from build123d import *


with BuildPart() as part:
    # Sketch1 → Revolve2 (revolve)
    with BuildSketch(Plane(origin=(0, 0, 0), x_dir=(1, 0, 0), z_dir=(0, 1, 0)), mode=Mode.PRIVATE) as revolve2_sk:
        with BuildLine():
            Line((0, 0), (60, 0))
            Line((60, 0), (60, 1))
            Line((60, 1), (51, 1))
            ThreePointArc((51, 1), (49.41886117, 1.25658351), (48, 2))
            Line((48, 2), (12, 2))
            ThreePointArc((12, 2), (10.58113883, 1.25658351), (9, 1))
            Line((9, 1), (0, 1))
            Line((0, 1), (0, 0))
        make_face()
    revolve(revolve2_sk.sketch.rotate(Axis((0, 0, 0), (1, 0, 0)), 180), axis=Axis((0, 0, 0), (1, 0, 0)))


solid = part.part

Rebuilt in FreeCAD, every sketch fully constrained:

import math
import FreeCAD as App
import Part
import Sketcher

V = App.Vector
Q = App.Units.Quantity

doc = App.newDocument("Part")
body = doc.addObject("PartDesign::Body", "Body")

# Sketch on XZ plane
sketch1 = body.newObject("Sketcher::SketchObject", "Sketch")
sketch1.AttachmentSupport = (doc.getObject("XZ_Plane"), [""])
sketch1.MapMode = "FlatFace"
sketch1.addGeometry([
    Part.LineSegment(V(0, 0, 0), V(60, 0, 0)),  # 0
    Part.LineSegment(V(60, 0, 0), V(60, -1, 0)),  # 1
    Part.LineSegment(V(60, -1, 0), V(51, -1, 0)),  # 2
    Part.ArcOfCircle(Part.Circle(V(51, -6, 0), V(0, 0, 1), 5), math.radians(90), math.radians(126.869898)),  # 3
    Part.LineSegment(V(48, -2, 0), V(12, -2, 0)),  # 4
    Part.ArcOfCircle(Part.Circle(V(9, -6, 0), V(0, 0, 1), 5), math.radians(53.130102), math.radians(90)),  # 5
    Part.LineSegment(V(9, -1, 0), V(0, -1, 0)),  # 6
    Part.LineSegment(V(0, -1, 0), V(0, 0, 0)),  # 7
], False)
sketch1.addConstraint([
    Sketcher.Constraint("Coincident", 0, 2, 1, 1),
    Sketcher.Constraint("Coincident", 1, 2, 2, 1),
    Sketcher.Constraint("Tangent", 2, 2, 3, 1),
    Sketcher.Constraint("Coincident", 3, 2, 4, 1),
    Sketcher.Constraint("Coincident", 4, 2, 5, 1),
    Sketcher.Constraint("Tangent", 5, 2, 6, 1),
    Sketcher.Constraint("Coincident", 6, 2, 7, 1),
    Sketcher.Constraint("Coincident", 7, 2, 0, 1),
    Sketcher.Constraint("Horizontal", 0),
    Sketcher.Constraint("Vertical", 1),
    Sketcher.Constraint("Horizontal", 2),
    Sketcher.Constraint("Horizontal", 4),
    Sketcher.Constraint("Horizontal", 6),
    Sketcher.Constraint("Vertical", 7),
    Sketcher.Constraint("Coincident", 7, 2, -1, 1),
    Sketcher.Constraint("Equal", 3, 5),
    Sketcher.Constraint("Horizontal", 3, 3, 5, 3),
    Sketcher.Constraint("Equal", 2, 6),
    Sketcher.Constraint("Radius", 3, Q("5 mm")),
    Sketcher.Constraint("DistanceX", 0, 1, 0, 2, Q("60 mm")),
    Sketcher.Constraint("DistanceX", 2, 2, 2, 1, Q("9 mm")),
    Sketcher.Constraint("DistanceX", 4, 2, 4, 1, Q("36 mm")),
    Sketcher.Constraint("DistanceY", 1, 2, 1, 1, Q("1 mm")),
])
revolution = body.newObject("PartDesign::Revolution", "Revolution")
revolution.Profile = sketch1
revolution.ReferenceAxis = (sketch1, ["H_Axis"])
revolution.Angle = 360

doc.recompute()
